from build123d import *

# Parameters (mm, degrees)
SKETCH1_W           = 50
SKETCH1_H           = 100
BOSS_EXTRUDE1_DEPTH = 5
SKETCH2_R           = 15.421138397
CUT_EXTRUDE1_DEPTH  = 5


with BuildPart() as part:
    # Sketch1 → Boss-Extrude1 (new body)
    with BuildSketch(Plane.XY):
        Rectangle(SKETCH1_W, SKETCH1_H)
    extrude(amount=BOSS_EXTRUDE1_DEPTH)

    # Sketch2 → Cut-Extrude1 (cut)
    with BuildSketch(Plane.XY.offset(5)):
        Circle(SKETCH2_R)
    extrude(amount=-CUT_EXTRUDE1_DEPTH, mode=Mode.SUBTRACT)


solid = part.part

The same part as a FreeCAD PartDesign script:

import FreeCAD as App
import Part
import Sketcher
from FreeCAD import Vector

doc = App.newDocument("Part")
body = doc.addObject("PartDesign::Body", "Body")

# Sketch on XY plane
sketch1 = body.newObject("Sketcher::SketchObject", "Sketch")
sketch1.AttachmentSupport = (doc.getObject("XY_Plane"), [""])
sketch1.MapMode = "FlatFace"
sketch1.addGeometry(Part.LineSegment(Vector(-25, 50, 0), Vector(-25, -50, 0)), False)
sketch1.addGeometry(Part.LineSegment(Vector(-25, -50, 0), Vector(25, -50, 0)), False)
sketch1.addGeometry(Part.LineSegment(Vector(25, -50, 0), Vector(25, 50, 0)), False)
sketch1.addGeometry(Part.LineSegment(Vector(25, 50, 0), Vector(-25, 50, 0)), False)
sketch1.addConstraint(Sketcher.Constraint("Coincident", 0, 2, 1, 1))
sketch1.addConstraint(Sketcher.Constraint("Coincident", 1, 2, 2, 1))
sketch1.addConstraint(Sketcher.Constraint("Coincident", 2, 2, 3, 1))
sketch1.addConstraint(Sketcher.Constraint("Coincident", 3, 2, 0, 1))
sketch1.addConstraint(Sketcher.Constraint("Vertical", 0))
sketch1.addConstraint(Sketcher.Constraint("Horizontal", 1))
sketch1.addConstraint(Sketcher.Constraint("Vertical", 2))
sketch1.addConstraint(Sketcher.Constraint("Horizontal", 3))
sketch1.addConstraint(Sketcher.Constraint("Symmetric", 0, 2, 2, 2, -1, 1))
sketch1.addConstraint(Sketcher.Constraint("DistanceX", 1, 1, 1, 2, 50.0))
sketch1.addConstraint(Sketcher.Constraint("DistanceY", 0, 2, 0, 1, 100.0))
pad1 = body.newObject("PartDesign::Pad", "Pad")
pad1.Profile = sketch1
pad1.Length = 5

# Sketch on XY plane
sketch2 = body.newObject("Sketcher::SketchObject", "Sketch001")
sketch2.AttachmentSupport = (doc.getObject("XY_Plane"), [""])
sketch2.MapMode = "FlatFace"
sketch2.AttachmentOffset = App.Placement(Vector(0, 0, 5), App.Rotation())
sketch2.addGeometry(Part.Circle(Vector(0, 0, 0), Vector(0, 0, 1), 15.421138), False)
sketch2.addConstraint(Sketcher.Constraint("Coincident", 0, 3, -1, 1))
sketch2.addConstraint(Sketcher.Constraint("Diameter", 0, 30.842277))
pocket1 = body.newObject("PartDesign::Pocket", "Pocket")
pocket1.Profile = sketch2
pocket1.Length = 5

doc.recompute()
